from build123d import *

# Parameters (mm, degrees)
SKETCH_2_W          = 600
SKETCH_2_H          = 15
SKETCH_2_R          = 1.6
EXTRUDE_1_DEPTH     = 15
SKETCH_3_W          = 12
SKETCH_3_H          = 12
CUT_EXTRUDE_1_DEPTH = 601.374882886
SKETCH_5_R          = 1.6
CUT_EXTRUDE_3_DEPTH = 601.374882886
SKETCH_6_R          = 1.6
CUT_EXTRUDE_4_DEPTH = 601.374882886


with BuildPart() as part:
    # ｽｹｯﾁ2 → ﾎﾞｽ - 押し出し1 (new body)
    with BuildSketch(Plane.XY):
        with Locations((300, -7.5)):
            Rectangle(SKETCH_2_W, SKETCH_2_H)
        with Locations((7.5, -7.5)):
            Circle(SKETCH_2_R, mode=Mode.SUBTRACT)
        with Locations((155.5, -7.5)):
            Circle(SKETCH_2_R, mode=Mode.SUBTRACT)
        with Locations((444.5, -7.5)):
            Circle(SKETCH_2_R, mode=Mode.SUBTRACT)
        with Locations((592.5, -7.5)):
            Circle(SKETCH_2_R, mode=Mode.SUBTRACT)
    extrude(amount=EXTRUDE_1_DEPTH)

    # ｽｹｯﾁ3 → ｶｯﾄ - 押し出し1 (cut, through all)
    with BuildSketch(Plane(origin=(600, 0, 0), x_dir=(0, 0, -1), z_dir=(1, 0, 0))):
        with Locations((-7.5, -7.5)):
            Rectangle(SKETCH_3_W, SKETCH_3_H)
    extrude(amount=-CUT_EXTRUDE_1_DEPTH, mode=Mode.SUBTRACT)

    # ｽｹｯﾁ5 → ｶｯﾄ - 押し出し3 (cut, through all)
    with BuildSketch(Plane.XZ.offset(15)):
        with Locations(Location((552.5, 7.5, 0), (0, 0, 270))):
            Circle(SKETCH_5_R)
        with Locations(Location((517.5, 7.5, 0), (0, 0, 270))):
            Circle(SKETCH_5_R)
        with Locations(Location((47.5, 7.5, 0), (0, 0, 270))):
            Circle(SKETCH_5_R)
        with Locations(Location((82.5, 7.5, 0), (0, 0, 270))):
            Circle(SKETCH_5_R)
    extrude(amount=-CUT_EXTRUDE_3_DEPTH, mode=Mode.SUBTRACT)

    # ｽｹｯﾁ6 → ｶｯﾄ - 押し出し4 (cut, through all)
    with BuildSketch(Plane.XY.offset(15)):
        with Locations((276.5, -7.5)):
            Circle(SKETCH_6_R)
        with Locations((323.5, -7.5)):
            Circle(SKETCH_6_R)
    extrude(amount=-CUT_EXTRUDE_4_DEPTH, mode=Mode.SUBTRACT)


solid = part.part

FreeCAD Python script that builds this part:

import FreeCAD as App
import Part
import Sketcher

V = App.Vector


def add_polygon(sketch, points):
    """Adds a closed chain of lines whose ends are joined by coincident constraints."""
    first, n = sketch.GeometryCount, len(points)
    for a, b in zip(points, points[1:] + points[:1]):
        sketch.addGeometry(Part.LineSegment(App.Vector(*a, 0), App.Vector(*b, 0)), False)
    for i in range(n):
        sketch.addConstraint(Sketcher.Constraint("Coincident", first + i, 2, first + (i + 1) % n, 1))

doc = App.newDocument("Part")
params = doc.addObject("Spreadsheet::Sheet", "Params")
for row, (alias, value) in enumerate([
    ("sketch1_diameter", "3.2 mm"),
    ("sketch1_width", "600 mm"),
    ("sketch1_height", "15 mm"),
    ("pad1_length", "15 mm"),
    ("sketch2_width", "12 mm"),
    ("sketch3_diameter", "3.2 mm"),
    ("sketch4_diameter", "3.2 mm"),
], start=1):
    params.set(f"A{row}", alias)
    params.set(f"B{row}", "=" + value)
    params.setAlias(f"B{row}", alias)

body = doc.addObject("PartDesign::Body", "Body")

sketch1 = body.newObject("Sketcher::SketchObject", "Sketch")
sketch1.AttachmentSupport = (doc.getObject("XY_Plane"), [""])
sketch1.MapMode = "FlatFace"
add_polygon(sketch1, [(0, 0), (0, -15), (600, -15), (600, 0)])
sketch1.addGeometry(Part.Circle(V(7.5, -7.5, 0), V(0, 0, 1), 1.6), False)
sketch1.addGeometry(Part.Circle(V(155.5, -7.5, 0), V(0, 0, 1), 1.6), False)
sketch1.addGeometry(Part.Circle(V(444.5, -7.5, 0), V(0, 0, 1), 1.6), False)
sketch1.addGeometry(Part.Circle(V(592.5, -7.5, 0), V(0, 0, 1), 1.6), False)
sketch1.addConstraint([
    Sketcher.Constraint("Vertical", 0),
    Sketcher.Constraint("Horizontal", 1),
    Sketcher.Constraint("Vertical", 2),
    Sketcher.Constraint("Horizontal", 3),
    Sketcher.Constraint("Coincident", 3, 2, -1, 1),
    Sketcher.Constraint("Equal", 4, 5),
    Sketcher.Constraint("Equal", 5, 6),
    Sketcher.Constraint("Equal", 6, 7),
    Sketcher.Constraint("Horizontal", 4, 3, 5, 3),
    Sketcher.Constraint("Horizontal", 5, 3, 6, 3),
    Sketcher.Constraint("Horizontal", 6, 3, 7, 3),
    Sketcher.Constraint("Diameter", 4, 3.2),
    Sketcher.Constraint("DistanceX", 1, 1, 1, 2, 600.0),
    Sketcher.Constraint("DistanceY", 0, 2, 0, 1, 15.0),
    Sketcher.Constraint("DistanceX", 4, 3, 5, 3, 148.0),
    Sketcher.Constraint("DistanceX", 5, 3, 6, 3, 289.0),
    Sketcher.Constraint("DistanceX", 6, 3, 7, 3, 148.0),
    Sketcher.Constraint("DistanceX", -1, 1, 4, 3, 7.5),
    Sketcher.Constraint("DistanceY", 4, 3, -1, 1, 7.5),
])
sketch1.setExpression("Constraints[15]", "Params.sketch1_diameter")
sketch1.setExpression("Constraints[16]", "Params.sketch1_width")
sketch1.setExpression("Constraints[17]", "Params.sketch1_height")
pad1 = body.newObject("PartDesign::Pad", "Pad")
pad1.Profile = sketch1
pad1.setExpression("Length", "Params.pad1_length")

sketch2 = body.newObject("Sketcher::SketchObject", "Sketch001")
sketch2.AttachmentSupport = (doc.getObject("YZ_Plane"), [""])
sketch2.MapMode = "FlatFace"
sketch2.AttachmentOffset = App.Placement(V(0, 0, 600), App.Rotation())
add_polygon(sketch2, [(-2, 14), (-14, 14), (-14, 2), (-2, 2)])
sketch2.addConstraint([
    Sketcher.Constraint("Horizontal", 0),
    Sketcher.Constraint("Vertical", 1),
    Sketcher.Constraint("Horizontal", 2),
    Sketcher.Constraint("Vertical", 3),
    Sketcher.Constraint("Equal", 2, 1),
    Sketcher.Constraint("DistanceX", 0, 2, 0, 1, 12.0),
    Sketcher.Constraint("DistanceX", 0, 2, -1, 1, 13.5),
    Sketcher.Constraint("DistanceY", -1, 1, 0, 2, 13.5),
])
sketch2.setExpression("Constraints[9]", "Params.sketch2_width")
pocket1 = body.newObject("PartDesign::Pocket", "Pocket")
pocket1.Profile = sketch2
pocket1.Type = "ThroughAll"

sketch3 = body.newObject("Sketcher::SketchObject", "Sketch002")
sketch3.AttachmentSupport = (doc.getObject("XZ_Plane"), [""])
sketch3.MapMode = "FlatFace"
sketch3.AttachmentOffset = App.Placement(V(0, 0, 15), App.Rotation())
sketch3.addGeometry([
    Part.Circle(V(552.5, 7.5, 0), V(0, 0, 1), 1.6),
    Part.Circle(V(517.5, 7.5, 0), V(0, 0, 1), 1.6),
    Part.Circle(V(47.5, 7.5, 0), V(0, 0, 1), 1.6),
    Part.Circle(V(82.5, 7.5, 0), V(0, 0, 1), 1.6),
], False)
sketch3.addConstraint([
    Sketcher.Constraint("Equal", 0, 1),
    Sketcher.Constraint("Equal", 1, 2),
    Sketcher.Constraint("Equal", 2, 3),
    Sketcher.Constraint("Horizontal", 0, 3, 1, 3),
    Sketcher.Constraint("Horizontal", 1, 3, 2, 3),
    Sketcher.Constraint("Horizontal", 2, 3, 3, 3),
    Sketcher.Constraint("Diameter", 0, 3.2),
    Sketcher.Constraint("DistanceX", 1, 3, 0, 3, 35.0),
    Sketcher.Constraint("DistanceX", 2, 3, 1, 3, 470.0),
    Sketcher.Constraint("DistanceX", 2, 3, 3, 3, 35.0),
    Sketcher.Constraint("DistanceX", -1, 1, 0, 3, 552.5),
    Sketcher.Constraint("DistanceY", -1, 1, 0, 3, 7.5),
])
sketch3.setExpression("Constraints[6]", "Params.sketch3_diameter")
pocket2 = body.newObject("PartDesign::Pocket", "Pocket001")
pocket2.Profile = sketch3
pocket2.Type = "ThroughAll"

sketch4 = body.newObject("Sketcher::SketchObject", "Sketch003")
sketch4.AttachmentSupport = (doc.getObject("XY_Plane"), [""])
sketch4.MapMode = "FlatFace"
sketch4.AttachmentOffset = App.Placement(V(0, 0, 15), App.Rotation())
sketch4.addGeometry([
    Part.Circle(V(276.5, -7.5, 0), V(0, 0, 1), 1.6),
    Part.Circle(V(323.5, -7.5, 0), V(0, 0, 1), 1.6),
], False)
sketch4.addConstraint([
    Sketcher.Constraint("Equal", 0, 1),
    Sketcher.Constraint("Horizontal", 0, 3, 1, 3),
    Sketcher.Constraint("Diameter", 0, 3.2),
    Sketcher.Constraint("DistanceX", 0, 3, 1, 3, 47.0),
    Sketcher.Constraint("DistanceX", -1, 1, 0, 3, 276.5),
    Sketcher.Constraint("DistanceY", 0, 3, -1, 1, 7.5),
])
sketch4.setExpression("Constraints[2]", "Params.sketch4_diameter")
pocket3 = body.newObject("PartDesign::Pocket", "Pocket002")
pocket3.Profile = sketch4
pocket3.Type = "ThroughAll"

doc.recompute()
